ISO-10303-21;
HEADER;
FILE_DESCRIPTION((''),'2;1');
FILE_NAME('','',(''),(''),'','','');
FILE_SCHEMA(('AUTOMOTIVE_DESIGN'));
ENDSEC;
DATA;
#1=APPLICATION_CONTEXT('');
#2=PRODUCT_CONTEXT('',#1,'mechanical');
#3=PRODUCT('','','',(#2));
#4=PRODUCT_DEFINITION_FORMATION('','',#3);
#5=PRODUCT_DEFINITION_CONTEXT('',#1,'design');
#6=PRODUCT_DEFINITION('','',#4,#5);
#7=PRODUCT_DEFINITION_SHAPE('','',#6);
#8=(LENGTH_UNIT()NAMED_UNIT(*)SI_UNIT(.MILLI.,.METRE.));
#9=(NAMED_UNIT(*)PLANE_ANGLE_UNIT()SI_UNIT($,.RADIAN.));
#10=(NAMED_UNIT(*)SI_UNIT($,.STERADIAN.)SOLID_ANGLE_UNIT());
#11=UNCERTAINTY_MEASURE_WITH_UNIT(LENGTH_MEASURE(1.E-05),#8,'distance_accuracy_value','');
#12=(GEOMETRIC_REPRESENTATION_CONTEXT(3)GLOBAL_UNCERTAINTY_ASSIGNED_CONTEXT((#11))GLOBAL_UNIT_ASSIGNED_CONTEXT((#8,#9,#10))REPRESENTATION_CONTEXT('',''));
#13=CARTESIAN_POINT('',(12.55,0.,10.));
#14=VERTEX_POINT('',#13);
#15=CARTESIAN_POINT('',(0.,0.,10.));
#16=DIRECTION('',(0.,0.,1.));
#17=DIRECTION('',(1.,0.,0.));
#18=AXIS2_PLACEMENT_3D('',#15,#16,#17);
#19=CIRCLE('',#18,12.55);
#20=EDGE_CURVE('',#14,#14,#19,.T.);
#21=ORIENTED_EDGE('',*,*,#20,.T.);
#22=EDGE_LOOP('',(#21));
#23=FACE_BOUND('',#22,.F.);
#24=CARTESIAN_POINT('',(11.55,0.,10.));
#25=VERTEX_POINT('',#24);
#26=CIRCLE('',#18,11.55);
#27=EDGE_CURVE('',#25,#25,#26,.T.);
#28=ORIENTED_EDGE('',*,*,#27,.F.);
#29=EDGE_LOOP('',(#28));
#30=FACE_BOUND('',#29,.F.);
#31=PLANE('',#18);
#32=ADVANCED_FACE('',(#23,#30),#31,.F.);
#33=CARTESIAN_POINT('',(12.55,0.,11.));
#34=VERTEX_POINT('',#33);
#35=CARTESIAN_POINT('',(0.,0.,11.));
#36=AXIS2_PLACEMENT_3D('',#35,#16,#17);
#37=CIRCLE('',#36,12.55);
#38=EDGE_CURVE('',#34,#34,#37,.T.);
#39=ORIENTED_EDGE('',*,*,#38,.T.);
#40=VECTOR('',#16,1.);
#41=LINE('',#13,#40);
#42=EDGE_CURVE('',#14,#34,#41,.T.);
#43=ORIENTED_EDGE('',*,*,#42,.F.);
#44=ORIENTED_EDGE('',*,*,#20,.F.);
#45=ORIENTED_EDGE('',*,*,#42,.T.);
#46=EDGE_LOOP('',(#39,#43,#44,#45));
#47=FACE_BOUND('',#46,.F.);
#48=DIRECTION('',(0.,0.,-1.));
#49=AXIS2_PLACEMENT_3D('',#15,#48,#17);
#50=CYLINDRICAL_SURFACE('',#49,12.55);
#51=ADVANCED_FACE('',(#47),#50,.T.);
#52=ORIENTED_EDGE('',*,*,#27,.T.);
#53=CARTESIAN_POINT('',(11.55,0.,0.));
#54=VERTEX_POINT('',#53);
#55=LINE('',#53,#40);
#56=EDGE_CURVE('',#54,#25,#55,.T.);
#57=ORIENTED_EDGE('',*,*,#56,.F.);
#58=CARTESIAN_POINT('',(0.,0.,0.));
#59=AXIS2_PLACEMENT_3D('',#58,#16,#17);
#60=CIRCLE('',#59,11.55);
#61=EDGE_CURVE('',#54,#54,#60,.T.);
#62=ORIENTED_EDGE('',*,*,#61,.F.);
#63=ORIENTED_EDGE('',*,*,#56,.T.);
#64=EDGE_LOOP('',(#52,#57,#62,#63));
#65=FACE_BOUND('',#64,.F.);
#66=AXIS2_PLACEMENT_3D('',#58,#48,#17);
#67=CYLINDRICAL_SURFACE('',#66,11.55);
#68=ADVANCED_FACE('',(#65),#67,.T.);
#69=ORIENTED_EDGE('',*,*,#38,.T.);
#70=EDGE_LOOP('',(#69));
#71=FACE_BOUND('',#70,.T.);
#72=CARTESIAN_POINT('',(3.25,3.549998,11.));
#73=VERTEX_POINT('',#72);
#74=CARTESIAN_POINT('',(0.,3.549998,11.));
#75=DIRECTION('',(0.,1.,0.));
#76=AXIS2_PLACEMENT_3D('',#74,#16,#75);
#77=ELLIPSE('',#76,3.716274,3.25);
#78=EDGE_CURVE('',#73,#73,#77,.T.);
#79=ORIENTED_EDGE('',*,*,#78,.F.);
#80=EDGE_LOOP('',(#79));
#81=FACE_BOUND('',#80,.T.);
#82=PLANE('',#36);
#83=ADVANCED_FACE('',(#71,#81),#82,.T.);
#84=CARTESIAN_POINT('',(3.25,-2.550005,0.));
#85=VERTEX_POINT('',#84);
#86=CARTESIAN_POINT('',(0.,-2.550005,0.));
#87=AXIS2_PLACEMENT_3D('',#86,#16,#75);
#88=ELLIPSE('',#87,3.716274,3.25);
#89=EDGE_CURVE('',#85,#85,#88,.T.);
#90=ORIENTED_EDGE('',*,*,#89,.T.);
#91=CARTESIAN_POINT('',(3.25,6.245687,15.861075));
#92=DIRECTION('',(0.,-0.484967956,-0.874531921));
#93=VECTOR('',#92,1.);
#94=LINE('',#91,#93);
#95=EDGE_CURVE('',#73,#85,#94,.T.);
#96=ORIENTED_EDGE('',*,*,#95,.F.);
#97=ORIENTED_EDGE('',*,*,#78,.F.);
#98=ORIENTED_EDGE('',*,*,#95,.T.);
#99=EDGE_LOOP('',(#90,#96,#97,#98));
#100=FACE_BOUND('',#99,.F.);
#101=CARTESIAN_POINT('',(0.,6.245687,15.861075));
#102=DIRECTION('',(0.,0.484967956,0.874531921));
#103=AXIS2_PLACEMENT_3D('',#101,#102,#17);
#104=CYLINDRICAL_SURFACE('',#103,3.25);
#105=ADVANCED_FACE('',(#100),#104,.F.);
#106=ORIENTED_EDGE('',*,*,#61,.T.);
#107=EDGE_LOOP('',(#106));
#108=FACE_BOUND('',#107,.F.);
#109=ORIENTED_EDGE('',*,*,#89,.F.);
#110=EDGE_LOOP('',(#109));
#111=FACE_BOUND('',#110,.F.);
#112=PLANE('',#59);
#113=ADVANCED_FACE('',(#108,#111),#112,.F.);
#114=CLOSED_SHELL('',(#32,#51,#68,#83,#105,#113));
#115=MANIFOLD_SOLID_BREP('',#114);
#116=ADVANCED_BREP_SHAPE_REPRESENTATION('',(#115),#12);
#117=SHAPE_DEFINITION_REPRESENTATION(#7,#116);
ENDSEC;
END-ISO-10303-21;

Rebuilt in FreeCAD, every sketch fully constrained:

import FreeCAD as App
import Part
import Sketcher

doc = App.newDocument("Part")
body = doc.addObject("PartDesign::Body", "Body")

# Sketch on XY plane
sketch1 = body.newObject("Sketcher::SketchObject", "Sketch")
sketch1.AttachmentSupport = (doc.getObject("XY_Plane"), [""])
sketch1.MapMode = "FlatFace"
sketch1.addGeometry(Part.Circle(App.Vector(0, 0, 0), App.Vector(0, 0, 1), 11.55), False)
sketch1.addConstraint(Sketcher.Constraint("Coincident", 0, 3, -1, 1))
sketch1.addConstraint(Sketcher.Constraint("Diameter", 0, 23.1))
pad1 = body.newObject("PartDesign::Pad", "Pad")
pad1.Profile = sketch1
pad1.Length = 10

# Sketch on XY plane
sketch2 = body.newObject("Sketcher::SketchObject", "Sketch001")
sketch2.AttachmentSupport = (doc.getObject("XY_Plane"), [""])
sketch2.MapMode = "FlatFace"
sketch2.AttachmentOffset = App.Placement(App.Vector(0, 0, 10), App.Rotation())
sketch2.addGeometry(Part.Circle(App.Vector(0, 0, 0), App.Vector(0, 0, 1), 12.55), False)
sketch2.addConstraint(Sketcher.Constraint("Coincident", 0, 3, -1, 1))
sketch2.addConstraint(Sketcher.Constraint("Diameter", 0, 25.1))
pad2 = body.newObject("PartDesign::Pad", "Pad001")
pad2.Profile = sketch2
pad2.Length = 1

# Sketch on an angled plane
sketch3 = body.newObject("Sketcher::SketchObject", "Sketch002")
sketch3.Placement = App.Placement(App.Vector(0, 8.195943, 14.779569), App.Rotation(App.Vector(1, 0, 0), App.Vector(0, 0.874531921, -0.484967956), App.Vector(0, 0.484967956, 0.874531921), "ZXY"))
sketch3.addGeometry(Part.Circle(App.Vector(0, -2.230057, 0), App.Vector(0, 0, 1), 3.25), False)
sketch3.addConstraint(Sketcher.Constraint("PointOnObject", 0, 3, -2))
sketch3.addConstraint(Sketcher.Constraint("Diameter", 0, 6.5))
sketch3.addConstraint(Sketcher.Constraint("DistanceY", 0, 3, -1, 1, 2.230057))
pocket1 = body.newObject("PartDesign::Pocket", "Pocket")
pocket1.Profile = sketch3
pocket1.Length = 27.57

doc.recompute()
